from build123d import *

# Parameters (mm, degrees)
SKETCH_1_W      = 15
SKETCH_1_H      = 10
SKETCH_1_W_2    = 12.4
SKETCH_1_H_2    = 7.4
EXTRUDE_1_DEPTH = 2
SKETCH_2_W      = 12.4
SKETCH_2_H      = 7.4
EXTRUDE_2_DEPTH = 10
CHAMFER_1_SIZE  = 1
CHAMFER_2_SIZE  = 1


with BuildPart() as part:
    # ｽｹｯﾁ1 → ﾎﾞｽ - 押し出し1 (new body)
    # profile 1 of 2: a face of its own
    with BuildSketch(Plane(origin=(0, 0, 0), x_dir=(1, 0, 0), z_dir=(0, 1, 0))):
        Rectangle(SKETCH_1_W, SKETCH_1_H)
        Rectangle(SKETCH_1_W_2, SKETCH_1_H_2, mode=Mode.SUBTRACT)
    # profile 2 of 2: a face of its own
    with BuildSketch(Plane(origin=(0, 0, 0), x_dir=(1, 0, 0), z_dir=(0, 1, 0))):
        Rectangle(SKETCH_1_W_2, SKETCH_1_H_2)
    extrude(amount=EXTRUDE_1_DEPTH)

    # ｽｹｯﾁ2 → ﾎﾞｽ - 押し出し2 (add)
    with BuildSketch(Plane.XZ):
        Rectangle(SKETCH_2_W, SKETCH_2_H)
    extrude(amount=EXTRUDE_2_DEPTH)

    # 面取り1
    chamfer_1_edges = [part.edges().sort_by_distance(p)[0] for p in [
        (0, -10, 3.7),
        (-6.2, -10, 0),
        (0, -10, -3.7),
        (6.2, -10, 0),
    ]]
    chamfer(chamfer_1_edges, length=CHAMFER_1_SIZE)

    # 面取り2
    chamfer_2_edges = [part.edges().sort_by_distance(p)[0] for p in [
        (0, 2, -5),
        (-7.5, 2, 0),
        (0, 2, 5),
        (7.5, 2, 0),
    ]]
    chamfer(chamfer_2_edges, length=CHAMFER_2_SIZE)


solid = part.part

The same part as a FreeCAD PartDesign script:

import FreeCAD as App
import Part
import Sketcher
from FreeCAD import Vector
Q = App.Units.Quantity


def edges_at(feature, points):
    """Names of the edges that pass closest to the given points."""
    edges = feature.Shape.Edges
    near = lambda p: min(range(len(edges)), key=lambda i: edges[i].distToShape(Part.Vertex(*p))[0])
    return sorted({f"Edge{near(p) + 1}" for p in points})

doc = App.newDocument("Part")
body = doc.addObject("PartDesign::Body", "Body")

# Sketch on XZ plane
sketch1 = body.newObject("Sketcher::SketchObject", "Sketch")
sketch1.AttachmentSupport = (doc.getObject("XZ_Plane"), [""])
sketch1.MapMode = "FlatFace"
sketch1.addGeometry(Part.LineSegment(Vector(-8, -5, 0), Vector(-8, 5, 0)), False)
sketch1.addGeometry(Part.LineSegment(Vector(-8, 5, 0), Vector(8, 5, 0)), False)
sketch1.addGeometry(Part.LineSegment(Vector(8, 5, 0), Vector(8, -5, 0)), False)
sketch1.addGeometry(Part.LineSegment(Vector(8, -5, 0), Vector(-8, -5, 0)), False)
sketch1.addConstraint(Sketcher.Constraint("Coincident", 0, 2, 1, 1))
sketch1.addConstraint(Sketcher.Constraint("Coincident", 1, 2, 2, 1))
sketch1.addConstraint(Sketcher.Constraint("Coincident", 2, 2, 3, 1))
sketch1.addConstraint(Sketcher.Constraint("Coincident", 3, 2, 0, 1))
sketch1.addConstraint(Sketcher.Constraint("Vertical", 0))
sketch1.addConstraint(Sketcher.Constraint("Horizontal", 1))
sketch1.addConstraint(Sketcher.Constraint("Vertical", 2))
sketch1.addConstraint(Sketcher.Constraint("Horizontal", 3))
sketch1.addConstraint(Sketcher.Constraint("Symmetric", 0, 2, 2, 2, -1, 1))
sketch1.addConstraint(Sketcher.Constraint("DistanceX", 1, 1, 1, 2, Q("15 mm")))
sketch1.addConstraint(Sketcher.Constraint("DistanceY", 0, 1, 0, 2, Q("10 mm")))
pad1 = body.newObject("PartDesign::Pad", "Pad")
pad1.Profile = sketch1
pad1.Length = 2
pad1.Reversed = True

# Sketch on XZ plane
sketch2 = body.newObject("Sketcher::SketchObject", "Sketch001")
sketch2.AttachmentSupport = (doc.getObject("XZ_Plane"), [""])
sketch2.MapMode = "FlatFace"
sketch2.addGeometry(Part.LineSegment(Vector(-6, 4, 0), Vector(-6, -4, 0)), False)
sketch2.addGeometry(Part.LineSegment(Vector(-6, -4, 0), Vector(6, -4, 0)), False)
sketch2.addGeometry(Part.LineSegment(Vector(6, -4, 0), Vector(6, 4, 0)), False)
sketch2.addGeometry(Part.LineSegment(Vector(6, 4, 0), Vector(-6, 4, 0)), False)
sketch2.addConstraint(Sketcher.Constraint("Coincident", 0, 2, 1, 1))
sketch2.addConstraint(Sketcher.Constraint("Coincident", 1, 2, 2, 1))
sketch2.addConstraint(Sketcher.Constraint("Coincident", 2, 2, 3, 1))
sketch2.addConstraint(Sketcher.Constraint("Coincident", 3, 2, 0, 1))
sketch2.addConstraint(Sketcher.Constraint("Vertical", 0))
sketch2.addConstraint(Sketcher.Constraint("Horizontal", 1))
sketch2.addConstraint(Sketcher.Constraint("Vertical", 2))
sketch2.addConstraint(Sketcher.Constraint("Horizontal", 3))
sketch2.addConstraint(Sketcher.Constraint("Symmetric", 0, 2, 2, 2, -1, 1))
sketch2.addConstraint(Sketcher.Constraint("DistanceX", 1, 1, 1, 2, Q("12.4 mm")))
sketch2.addConstraint(Sketcher.Constraint("DistanceY", 0, 2, 0, 1, Q("7.4 mm")))
pad2 = body.newObject("PartDesign::Pad", "Pad001")
pad2.Profile = sketch2
pad2.Length = 10
doc.recompute()

chamfer = body.newObject("PartDesign::Chamfer", "Chamfer")
chamfer.Base = (pad2, edges_at(pad2, [
    (0, -10, 3.7),
    (-6.2, -10, 0),
    (0, -10, -3.7),
    (6.2, -10, 0),
]))
chamfer.Size = 1
doc.recompute()

chamfer2 = body.newObject("PartDesign::Chamfer", "Chamfer001")
chamfer2.Base = (chamfer, edges_at(chamfer, [
    (0, 2, -5),
    (-7.5, 2, 0),
    (0, 2, 5),
    (7.5, 2, 0),
]))
chamfer2.Size = 1

doc.recompute()
